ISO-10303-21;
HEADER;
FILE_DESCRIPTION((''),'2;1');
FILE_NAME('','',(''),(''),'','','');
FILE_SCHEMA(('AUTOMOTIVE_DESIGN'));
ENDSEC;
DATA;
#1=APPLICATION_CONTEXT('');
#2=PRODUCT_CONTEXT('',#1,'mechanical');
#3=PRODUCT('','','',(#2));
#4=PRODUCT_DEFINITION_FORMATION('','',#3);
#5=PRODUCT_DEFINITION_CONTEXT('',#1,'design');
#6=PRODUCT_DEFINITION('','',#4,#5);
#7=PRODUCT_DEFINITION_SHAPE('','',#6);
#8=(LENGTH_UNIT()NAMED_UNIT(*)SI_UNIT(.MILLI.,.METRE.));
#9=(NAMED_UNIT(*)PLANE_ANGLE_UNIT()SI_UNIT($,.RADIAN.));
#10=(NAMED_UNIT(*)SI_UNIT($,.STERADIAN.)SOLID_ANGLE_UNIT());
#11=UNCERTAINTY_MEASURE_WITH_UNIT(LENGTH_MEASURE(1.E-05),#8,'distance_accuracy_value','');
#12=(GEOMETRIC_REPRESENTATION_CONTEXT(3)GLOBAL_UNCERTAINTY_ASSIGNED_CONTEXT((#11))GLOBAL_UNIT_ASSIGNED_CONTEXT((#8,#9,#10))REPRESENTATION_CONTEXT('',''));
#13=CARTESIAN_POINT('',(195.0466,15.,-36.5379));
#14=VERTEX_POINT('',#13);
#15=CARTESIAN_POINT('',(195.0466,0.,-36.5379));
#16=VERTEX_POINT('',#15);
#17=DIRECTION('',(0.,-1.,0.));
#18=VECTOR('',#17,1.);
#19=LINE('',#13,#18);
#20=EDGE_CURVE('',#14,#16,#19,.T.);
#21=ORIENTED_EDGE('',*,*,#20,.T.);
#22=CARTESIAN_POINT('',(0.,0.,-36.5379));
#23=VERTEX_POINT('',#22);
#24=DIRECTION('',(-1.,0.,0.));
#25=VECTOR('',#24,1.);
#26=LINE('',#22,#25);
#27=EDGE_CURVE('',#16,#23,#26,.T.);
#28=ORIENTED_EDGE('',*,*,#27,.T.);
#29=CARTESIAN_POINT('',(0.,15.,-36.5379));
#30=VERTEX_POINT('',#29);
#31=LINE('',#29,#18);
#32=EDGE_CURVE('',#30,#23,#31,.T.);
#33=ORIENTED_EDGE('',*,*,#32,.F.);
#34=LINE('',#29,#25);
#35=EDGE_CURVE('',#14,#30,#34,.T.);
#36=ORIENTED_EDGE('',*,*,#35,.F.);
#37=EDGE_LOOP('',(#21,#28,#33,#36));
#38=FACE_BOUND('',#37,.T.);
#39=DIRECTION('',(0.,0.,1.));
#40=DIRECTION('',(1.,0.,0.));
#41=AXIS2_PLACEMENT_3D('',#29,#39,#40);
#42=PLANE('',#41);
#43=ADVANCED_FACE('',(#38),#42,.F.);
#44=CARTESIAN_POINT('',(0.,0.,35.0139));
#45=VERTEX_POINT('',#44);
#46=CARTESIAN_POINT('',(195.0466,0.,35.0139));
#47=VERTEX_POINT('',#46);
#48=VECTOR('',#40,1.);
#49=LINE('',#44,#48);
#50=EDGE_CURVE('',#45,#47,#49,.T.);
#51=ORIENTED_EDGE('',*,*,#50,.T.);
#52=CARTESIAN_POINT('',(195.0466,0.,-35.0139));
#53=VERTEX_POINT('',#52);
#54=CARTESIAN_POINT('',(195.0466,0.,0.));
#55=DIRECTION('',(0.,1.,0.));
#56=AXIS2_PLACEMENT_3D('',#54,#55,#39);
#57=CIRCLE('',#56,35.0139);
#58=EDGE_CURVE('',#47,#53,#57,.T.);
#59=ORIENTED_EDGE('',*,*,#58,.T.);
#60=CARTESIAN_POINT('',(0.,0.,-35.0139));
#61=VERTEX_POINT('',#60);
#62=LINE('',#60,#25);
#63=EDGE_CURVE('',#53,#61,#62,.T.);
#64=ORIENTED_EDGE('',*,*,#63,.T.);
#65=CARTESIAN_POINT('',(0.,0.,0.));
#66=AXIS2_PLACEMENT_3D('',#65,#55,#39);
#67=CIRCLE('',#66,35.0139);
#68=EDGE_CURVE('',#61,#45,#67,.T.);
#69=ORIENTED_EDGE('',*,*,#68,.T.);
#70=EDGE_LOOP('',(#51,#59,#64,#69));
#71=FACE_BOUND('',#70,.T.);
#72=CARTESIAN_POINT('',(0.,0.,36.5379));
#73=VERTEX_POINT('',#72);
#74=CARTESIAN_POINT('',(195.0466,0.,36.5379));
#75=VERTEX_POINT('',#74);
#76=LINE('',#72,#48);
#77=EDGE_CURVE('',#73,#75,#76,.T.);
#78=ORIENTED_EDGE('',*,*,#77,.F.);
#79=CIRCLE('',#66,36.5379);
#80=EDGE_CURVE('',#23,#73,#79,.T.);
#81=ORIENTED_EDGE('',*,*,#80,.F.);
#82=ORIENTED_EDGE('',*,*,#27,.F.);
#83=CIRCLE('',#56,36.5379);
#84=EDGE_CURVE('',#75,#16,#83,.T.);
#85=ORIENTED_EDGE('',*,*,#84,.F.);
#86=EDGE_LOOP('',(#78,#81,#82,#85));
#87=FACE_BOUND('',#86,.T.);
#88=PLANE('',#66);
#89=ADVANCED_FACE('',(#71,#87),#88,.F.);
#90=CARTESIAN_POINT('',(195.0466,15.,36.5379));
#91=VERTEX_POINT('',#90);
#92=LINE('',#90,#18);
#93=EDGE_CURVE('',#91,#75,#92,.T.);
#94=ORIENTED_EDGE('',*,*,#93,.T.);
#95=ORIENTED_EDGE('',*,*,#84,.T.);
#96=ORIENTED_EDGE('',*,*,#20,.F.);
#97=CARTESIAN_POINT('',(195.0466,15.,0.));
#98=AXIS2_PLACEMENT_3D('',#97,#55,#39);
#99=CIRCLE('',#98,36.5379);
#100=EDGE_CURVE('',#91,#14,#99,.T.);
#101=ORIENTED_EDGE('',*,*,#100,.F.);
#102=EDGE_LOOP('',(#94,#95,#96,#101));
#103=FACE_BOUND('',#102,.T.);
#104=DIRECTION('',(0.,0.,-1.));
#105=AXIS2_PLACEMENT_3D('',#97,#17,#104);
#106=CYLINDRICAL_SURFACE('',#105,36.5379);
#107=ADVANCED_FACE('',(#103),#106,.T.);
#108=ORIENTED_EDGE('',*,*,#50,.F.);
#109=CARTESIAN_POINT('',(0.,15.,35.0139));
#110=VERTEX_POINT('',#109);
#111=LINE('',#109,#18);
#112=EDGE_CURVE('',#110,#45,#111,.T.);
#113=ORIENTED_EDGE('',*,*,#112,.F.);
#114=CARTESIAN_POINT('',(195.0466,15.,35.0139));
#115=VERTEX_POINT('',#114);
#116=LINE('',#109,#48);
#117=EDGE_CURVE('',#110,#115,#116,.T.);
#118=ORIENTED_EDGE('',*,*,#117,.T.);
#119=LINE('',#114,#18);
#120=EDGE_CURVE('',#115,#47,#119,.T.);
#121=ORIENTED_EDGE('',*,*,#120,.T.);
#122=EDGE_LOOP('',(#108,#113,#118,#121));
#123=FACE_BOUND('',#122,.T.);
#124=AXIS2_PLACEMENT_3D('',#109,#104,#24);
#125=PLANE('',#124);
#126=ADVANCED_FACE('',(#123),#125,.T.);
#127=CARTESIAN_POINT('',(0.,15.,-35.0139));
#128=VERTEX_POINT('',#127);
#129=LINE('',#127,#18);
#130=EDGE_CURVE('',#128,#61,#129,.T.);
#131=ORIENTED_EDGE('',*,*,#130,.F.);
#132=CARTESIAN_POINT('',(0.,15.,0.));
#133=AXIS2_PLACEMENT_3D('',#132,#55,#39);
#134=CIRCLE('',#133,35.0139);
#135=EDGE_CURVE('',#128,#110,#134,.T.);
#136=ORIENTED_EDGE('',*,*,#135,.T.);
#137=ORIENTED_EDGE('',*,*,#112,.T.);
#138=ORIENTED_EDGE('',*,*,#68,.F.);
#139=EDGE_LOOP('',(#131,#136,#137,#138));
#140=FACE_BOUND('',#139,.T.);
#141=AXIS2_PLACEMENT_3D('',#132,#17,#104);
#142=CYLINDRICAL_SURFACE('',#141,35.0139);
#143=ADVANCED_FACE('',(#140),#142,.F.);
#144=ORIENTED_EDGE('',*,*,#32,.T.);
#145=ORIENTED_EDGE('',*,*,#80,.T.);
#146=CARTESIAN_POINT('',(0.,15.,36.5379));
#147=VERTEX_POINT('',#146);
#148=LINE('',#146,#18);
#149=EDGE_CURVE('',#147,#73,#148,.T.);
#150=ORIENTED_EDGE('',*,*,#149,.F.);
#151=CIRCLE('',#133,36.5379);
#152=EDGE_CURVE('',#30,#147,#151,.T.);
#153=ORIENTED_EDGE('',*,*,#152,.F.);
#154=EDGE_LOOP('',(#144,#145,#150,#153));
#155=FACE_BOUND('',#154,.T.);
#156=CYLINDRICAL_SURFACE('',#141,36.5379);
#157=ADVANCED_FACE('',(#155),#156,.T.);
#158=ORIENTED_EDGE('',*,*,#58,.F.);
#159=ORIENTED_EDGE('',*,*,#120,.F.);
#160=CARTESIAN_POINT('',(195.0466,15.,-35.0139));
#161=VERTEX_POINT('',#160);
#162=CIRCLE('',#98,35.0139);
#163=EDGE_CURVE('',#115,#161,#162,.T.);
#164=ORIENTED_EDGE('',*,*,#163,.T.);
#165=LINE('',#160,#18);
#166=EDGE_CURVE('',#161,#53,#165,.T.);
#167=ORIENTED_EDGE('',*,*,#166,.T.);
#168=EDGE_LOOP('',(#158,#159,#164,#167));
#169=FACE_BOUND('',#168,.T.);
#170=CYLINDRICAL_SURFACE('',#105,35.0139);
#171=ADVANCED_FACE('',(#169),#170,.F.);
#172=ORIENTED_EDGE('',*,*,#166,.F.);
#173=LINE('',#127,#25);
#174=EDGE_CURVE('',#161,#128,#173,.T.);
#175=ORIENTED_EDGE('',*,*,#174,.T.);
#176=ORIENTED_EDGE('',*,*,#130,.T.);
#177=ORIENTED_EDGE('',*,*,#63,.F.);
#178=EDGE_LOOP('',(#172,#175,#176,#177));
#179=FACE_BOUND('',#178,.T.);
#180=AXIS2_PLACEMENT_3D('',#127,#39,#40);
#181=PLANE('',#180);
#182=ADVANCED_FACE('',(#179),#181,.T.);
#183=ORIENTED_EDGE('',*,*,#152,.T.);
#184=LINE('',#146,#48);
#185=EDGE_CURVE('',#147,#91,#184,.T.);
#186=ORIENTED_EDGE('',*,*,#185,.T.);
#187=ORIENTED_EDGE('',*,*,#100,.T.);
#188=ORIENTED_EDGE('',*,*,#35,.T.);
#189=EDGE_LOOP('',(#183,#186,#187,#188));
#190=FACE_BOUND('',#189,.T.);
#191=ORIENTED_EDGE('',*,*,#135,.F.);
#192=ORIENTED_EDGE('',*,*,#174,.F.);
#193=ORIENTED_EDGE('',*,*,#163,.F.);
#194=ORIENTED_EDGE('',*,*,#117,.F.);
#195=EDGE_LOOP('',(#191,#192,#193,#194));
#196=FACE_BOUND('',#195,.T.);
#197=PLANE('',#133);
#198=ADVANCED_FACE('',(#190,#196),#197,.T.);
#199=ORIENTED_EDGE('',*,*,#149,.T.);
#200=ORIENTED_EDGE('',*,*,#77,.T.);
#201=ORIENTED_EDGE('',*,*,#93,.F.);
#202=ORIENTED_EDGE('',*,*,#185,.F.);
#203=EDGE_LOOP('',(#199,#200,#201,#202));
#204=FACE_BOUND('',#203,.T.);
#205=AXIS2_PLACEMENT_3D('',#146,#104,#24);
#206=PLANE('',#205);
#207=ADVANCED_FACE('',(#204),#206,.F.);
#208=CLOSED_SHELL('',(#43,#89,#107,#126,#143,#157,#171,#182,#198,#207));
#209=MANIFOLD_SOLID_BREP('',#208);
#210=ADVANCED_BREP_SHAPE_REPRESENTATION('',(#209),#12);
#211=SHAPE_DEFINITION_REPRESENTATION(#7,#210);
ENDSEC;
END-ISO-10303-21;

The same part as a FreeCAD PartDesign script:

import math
import FreeCAD as App
import Part
import Sketcher
from FreeCAD import Vector
Q = App.Units.Quantity

doc = App.newDocument("Part")
body = doc.addObject("PartDesign::Body", "Body")

# Sketch on XZ plane
sketch1 = body.newObject("Sketcher::SketchObject", "Sketch")
sketch1.AttachmentSupport = (doc.getObject("XZ_Plane"), [""])
sketch1.MapMode = "FlatFace"
sketch1.addGeometry(Part.LineSegment(Vector(0, 36.5379, 0), Vector(195.0466, 36.5379, 0)), False)
sketch1.addGeometry(Part.ArcOfCircle(Part.Circle(Vector(195.0466, 0, 0), Vector(0, 0, 1), 36.5379), math.radians(-90), math.radians(90)), False)
sketch1.addGeometry(Part.LineSegment(Vector(195.0466, -36.5379, 0), Vector(0, -36.5379, 0)), False)
sketch1.addGeometry(Part.ArcOfCircle(Part.Circle(Vector(0, 0, 0), Vector(0, 0, 1), 36.5379), math.radians(90), math.radians(270)), False)
sketch1.addGeometry(Part.ArcOfCircle(Part.Circle(Vector(0, 0, 0), Vector(0, 0, 1), 35.0139), math.radians(90), math.radians(270)), False)
sketch1.addGeometry(Part.LineSegment(Vector(0, -35.0139, 0), Vector(195.0466, -35.0139, 0)), False)
sketch1.addGeometry(Part.ArcOfCircle(Part.Circle(Vector(195.0466, 0, 0), Vector(0, 0, 1), 35.0139), math.radians(-90), math.radians(90)), False)
sketch1.addGeometry(Part.LineSegment(Vector(195.0466, 35.0139, 0), Vector(0, 35.0139, 0)), False)
sketch1.addConstraint(Sketcher.Constraint("Tangent", 0, 2, 1, 2))
sketch1.addConstraint(Sketcher.Constraint("Tangent", 1, 1, 2, 1))
sketch1.addConstraint(Sketcher.Constraint("Tangent", 2, 2, 3, 2))
sketch1.addConstraint(Sketcher.Constraint("Tangent", 3, 1, 0, 1))
sketch1.addConstraint(Sketcher.Constraint("Tangent", 4, 2, 5, 1))
sketch1.addConstraint(Sketcher.Constraint("Tangent", 5, 2, 6, 1))
sketch1.addConstraint(Sketcher.Constraint("Tangent", 6, 2, 7, 1))
sketch1.addConstraint(Sketcher.Constraint("Tangent", 7, 2, 4, 1))
sketch1.addConstraint(Sketcher.Constraint("Horizontal", 0))
sketch1.addConstraint(Sketcher.Constraint("Horizontal", 2))
sketch1.addConstraint(Sketcher.Constraint("Horizontal", 5))
sketch1.addConstraint(Sketcher.Constraint("Horizontal", 7))
sketch1.addConstraint(Sketcher.Constraint("Coincident", 3, 3, -1, 1))
sketch1.addConstraint(Sketcher.Constraint("Coincident", 4, 3, -1, 1))
sketch1.addConstraint(Sketcher.Constraint("Vertical", 6, 3, 0, 2))
sketch1.addConstraint(Sketcher.Constraint("Radius", 1, Q("1.4385 in")))
sketch1.addConstraint(Sketcher.Constraint("Radius", 4, Q("1.3785 in")))
sketch1.addConstraint(Sketcher.Constraint("DistanceX", 0, 1, 0, 2, Q("7.679 in")))
pad1 = body.newObject("PartDesign::Pad", "Pad")
pad1.Profile = sketch1
pad1.Length = 15
pad1.Reversed = True

doc.recompute()
